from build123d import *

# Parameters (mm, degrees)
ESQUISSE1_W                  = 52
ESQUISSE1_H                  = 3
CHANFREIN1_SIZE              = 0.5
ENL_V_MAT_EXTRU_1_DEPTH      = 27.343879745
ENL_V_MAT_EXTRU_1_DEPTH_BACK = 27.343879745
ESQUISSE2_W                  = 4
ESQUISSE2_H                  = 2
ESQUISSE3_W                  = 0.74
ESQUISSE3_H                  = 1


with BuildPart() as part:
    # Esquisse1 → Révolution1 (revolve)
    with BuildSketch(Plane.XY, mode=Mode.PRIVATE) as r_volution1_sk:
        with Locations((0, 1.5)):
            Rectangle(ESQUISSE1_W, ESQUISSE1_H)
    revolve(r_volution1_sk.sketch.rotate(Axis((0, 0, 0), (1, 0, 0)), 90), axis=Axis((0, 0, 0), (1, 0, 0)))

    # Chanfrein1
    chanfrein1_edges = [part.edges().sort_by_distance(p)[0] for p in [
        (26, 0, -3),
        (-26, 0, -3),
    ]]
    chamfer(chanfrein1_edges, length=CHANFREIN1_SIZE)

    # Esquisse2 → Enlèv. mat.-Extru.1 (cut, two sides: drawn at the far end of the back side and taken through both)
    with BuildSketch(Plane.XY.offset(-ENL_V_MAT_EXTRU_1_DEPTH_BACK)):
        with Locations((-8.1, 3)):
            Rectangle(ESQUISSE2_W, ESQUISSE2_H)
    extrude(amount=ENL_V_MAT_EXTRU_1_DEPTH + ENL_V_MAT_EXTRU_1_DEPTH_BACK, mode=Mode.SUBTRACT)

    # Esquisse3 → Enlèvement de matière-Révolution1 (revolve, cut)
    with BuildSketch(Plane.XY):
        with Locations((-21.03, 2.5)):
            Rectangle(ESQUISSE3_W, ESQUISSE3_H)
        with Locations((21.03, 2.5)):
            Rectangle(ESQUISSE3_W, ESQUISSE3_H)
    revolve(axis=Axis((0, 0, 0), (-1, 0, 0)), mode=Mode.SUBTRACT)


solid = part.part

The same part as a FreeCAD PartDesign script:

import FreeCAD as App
import Part
import Sketcher
from FreeCAD import Vector
Q = App.Units.Quantity


def edges_at(feature, points):
    """Names of the edges that pass closest to the given points."""
    edges = feature.Shape.Edges
    near = lambda p: min(range(len(edges)), key=lambda i: edges[i].distToShape(Part.Vertex(*p))[0])
    return sorted({f"Edge{near(p) + 1}" for p in points})


def add_polygon(sketch, points):
    """Adds a closed chain of lines whose ends are joined by coincident constraints."""
    first, n = sketch.GeometryCount, len(points)
    for a, b in zip(points, points[1:] + points[:1]):
        sketch.addGeometry(Part.LineSegment(App.Vector(*a, 0), App.Vector(*b, 0)), False)
    for i in range(n):
        sketch.addConstraint(Sketcher.Constraint("Coincident", first + i, 2, first + (i + 1) % n, 1))

doc = App.newDocument("Part")
body = doc.addObject("PartDesign::Body", "Body")

sketch1 = body.newObject("Sketcher::SketchObject", "Sketch")
sketch1.AttachmentSupport = (doc.getObject("XY_Plane"), [""])
sketch1.MapMode = "FlatFace"
add_polygon(sketch1, [(-26, 3), (-26, 0), (26, 0), (26, 3)])
sketch1.addConstraint([
    Sketcher.Constraint("Vertical", 0),
    Sketcher.Constraint("Horizontal", 1),
    Sketcher.Constraint("Vertical", 2),
    Sketcher.Constraint("Horizontal", 3),
    Sketcher.Constraint("Symmetric", 0, 2, 1, 2, -1, 1),
    Sketcher.Constraint("DistanceX", 1, 1, 1, 2, Q("52 mm")),
    Sketcher.Constraint("DistanceY", 0, 2, 0, 1, Q("3 mm")),
])
revolution = body.newObject("PartDesign::Revolution", "Revolution")
revolution.Profile = sketch1
revolution.ReferenceAxis = (sketch1, ["H_Axis"])
revolution.Angle = 360
doc.recompute()

chamfer = body.newObject("PartDesign::Chamfer", "Chamfer")
chamfer.Base = (revolution, edges_at(revolution, [(26, 0, -3), (-26, 0, -3)]))
chamfer.Size = 0.5

sketch2 = body.newObject("Sketcher::SketchObject", "Sketch001")
sketch2.AttachmentSupport = (doc.getObject("XY_Plane"), [""])
sketch2.MapMode = "FlatFace"
add_polygon(sketch2, [(-10.1, 4), (-10.1, 2), (-6.1, 2), (-6.1, 4)])
sketch2.addConstraint([
    Sketcher.Constraint("Vertical", 0),
    Sketcher.Constraint("Horizontal", 1),
    Sketcher.Constraint("Vertical", 2),
    Sketcher.Constraint("Horizontal", 3),
    Sketcher.Constraint("DistanceX", 1, 1, 1, 2, Q("4 mm")),
    Sketcher.Constraint("DistanceY", 0, 2, 0, 1, Q("2 mm")),
    Sketcher.Constraint("DistanceY", -1, 1, 0, 2, Q("2 mm")),
    Sketcher.Constraint("DistanceX", 0, 2, -1, 1, Q("10.1 mm")),
])
pocket1 = body.newObject("PartDesign::Pocket", "Pocket")
pocket1.Profile = sketch2
pocket1.Type = "ThroughAll"
pocket1.Midplane = True

sketch3 = body.newObject("Sketcher::SketchObject", "Sketch002")
sketch3.AttachmentSupport = (doc.getObject("XY_Plane"), [""])
sketch3.MapMode = "FlatFace"
add_polygon(sketch3, [(-21.4, 3), (-21.4, 2), (-20.7, 2), (-20.7, 3)])
add_polygon(sketch3, [(20.7, 3), (20.7, 2), (21.4, 2), (21.4, 3)])
sketch3.addConstraint([
    Sketcher.Constraint("Vertical", 0),
    Sketcher.Constraint("Horizontal", 1),
    Sketcher.Constraint("Vertical", 2),
    Sketcher.Constraint("Horizontal", 3),
    Sketcher.Constraint("Vertical", 4),
    Sketcher.Constraint("Horizontal", 5),
    Sketcher.Constraint("Vertical", 6),
    Sketcher.Constraint("Horizontal", 7),
    Sketcher.Constraint("Symmetric", 1, 2, 4, 2, -2),
    Sketcher.Constraint("Symmetric", 3, 2, 6, 2, -2),
    Sketcher.Constraint("DistanceY", 0, 2, 0, 1, Q("1 mm")),
    Sketcher.Constraint("DistanceY", -1, 1, 0, 2, Q("2 mm")),
    Sketcher.Constraint("DistanceX", 1, 1, 1, 2, Q("0.74 mm")),
    Sketcher.Constraint("DistanceX", 0, 2, -1, 1, Q("21.4 mm")),
])
groove = body.newObject("PartDesign::Groove", "Groove")
groove.Profile = sketch3
groove.ReferenceAxis = (sketch3, ["H_Axis"])
groove.Angle = 360

doc.recompute()
